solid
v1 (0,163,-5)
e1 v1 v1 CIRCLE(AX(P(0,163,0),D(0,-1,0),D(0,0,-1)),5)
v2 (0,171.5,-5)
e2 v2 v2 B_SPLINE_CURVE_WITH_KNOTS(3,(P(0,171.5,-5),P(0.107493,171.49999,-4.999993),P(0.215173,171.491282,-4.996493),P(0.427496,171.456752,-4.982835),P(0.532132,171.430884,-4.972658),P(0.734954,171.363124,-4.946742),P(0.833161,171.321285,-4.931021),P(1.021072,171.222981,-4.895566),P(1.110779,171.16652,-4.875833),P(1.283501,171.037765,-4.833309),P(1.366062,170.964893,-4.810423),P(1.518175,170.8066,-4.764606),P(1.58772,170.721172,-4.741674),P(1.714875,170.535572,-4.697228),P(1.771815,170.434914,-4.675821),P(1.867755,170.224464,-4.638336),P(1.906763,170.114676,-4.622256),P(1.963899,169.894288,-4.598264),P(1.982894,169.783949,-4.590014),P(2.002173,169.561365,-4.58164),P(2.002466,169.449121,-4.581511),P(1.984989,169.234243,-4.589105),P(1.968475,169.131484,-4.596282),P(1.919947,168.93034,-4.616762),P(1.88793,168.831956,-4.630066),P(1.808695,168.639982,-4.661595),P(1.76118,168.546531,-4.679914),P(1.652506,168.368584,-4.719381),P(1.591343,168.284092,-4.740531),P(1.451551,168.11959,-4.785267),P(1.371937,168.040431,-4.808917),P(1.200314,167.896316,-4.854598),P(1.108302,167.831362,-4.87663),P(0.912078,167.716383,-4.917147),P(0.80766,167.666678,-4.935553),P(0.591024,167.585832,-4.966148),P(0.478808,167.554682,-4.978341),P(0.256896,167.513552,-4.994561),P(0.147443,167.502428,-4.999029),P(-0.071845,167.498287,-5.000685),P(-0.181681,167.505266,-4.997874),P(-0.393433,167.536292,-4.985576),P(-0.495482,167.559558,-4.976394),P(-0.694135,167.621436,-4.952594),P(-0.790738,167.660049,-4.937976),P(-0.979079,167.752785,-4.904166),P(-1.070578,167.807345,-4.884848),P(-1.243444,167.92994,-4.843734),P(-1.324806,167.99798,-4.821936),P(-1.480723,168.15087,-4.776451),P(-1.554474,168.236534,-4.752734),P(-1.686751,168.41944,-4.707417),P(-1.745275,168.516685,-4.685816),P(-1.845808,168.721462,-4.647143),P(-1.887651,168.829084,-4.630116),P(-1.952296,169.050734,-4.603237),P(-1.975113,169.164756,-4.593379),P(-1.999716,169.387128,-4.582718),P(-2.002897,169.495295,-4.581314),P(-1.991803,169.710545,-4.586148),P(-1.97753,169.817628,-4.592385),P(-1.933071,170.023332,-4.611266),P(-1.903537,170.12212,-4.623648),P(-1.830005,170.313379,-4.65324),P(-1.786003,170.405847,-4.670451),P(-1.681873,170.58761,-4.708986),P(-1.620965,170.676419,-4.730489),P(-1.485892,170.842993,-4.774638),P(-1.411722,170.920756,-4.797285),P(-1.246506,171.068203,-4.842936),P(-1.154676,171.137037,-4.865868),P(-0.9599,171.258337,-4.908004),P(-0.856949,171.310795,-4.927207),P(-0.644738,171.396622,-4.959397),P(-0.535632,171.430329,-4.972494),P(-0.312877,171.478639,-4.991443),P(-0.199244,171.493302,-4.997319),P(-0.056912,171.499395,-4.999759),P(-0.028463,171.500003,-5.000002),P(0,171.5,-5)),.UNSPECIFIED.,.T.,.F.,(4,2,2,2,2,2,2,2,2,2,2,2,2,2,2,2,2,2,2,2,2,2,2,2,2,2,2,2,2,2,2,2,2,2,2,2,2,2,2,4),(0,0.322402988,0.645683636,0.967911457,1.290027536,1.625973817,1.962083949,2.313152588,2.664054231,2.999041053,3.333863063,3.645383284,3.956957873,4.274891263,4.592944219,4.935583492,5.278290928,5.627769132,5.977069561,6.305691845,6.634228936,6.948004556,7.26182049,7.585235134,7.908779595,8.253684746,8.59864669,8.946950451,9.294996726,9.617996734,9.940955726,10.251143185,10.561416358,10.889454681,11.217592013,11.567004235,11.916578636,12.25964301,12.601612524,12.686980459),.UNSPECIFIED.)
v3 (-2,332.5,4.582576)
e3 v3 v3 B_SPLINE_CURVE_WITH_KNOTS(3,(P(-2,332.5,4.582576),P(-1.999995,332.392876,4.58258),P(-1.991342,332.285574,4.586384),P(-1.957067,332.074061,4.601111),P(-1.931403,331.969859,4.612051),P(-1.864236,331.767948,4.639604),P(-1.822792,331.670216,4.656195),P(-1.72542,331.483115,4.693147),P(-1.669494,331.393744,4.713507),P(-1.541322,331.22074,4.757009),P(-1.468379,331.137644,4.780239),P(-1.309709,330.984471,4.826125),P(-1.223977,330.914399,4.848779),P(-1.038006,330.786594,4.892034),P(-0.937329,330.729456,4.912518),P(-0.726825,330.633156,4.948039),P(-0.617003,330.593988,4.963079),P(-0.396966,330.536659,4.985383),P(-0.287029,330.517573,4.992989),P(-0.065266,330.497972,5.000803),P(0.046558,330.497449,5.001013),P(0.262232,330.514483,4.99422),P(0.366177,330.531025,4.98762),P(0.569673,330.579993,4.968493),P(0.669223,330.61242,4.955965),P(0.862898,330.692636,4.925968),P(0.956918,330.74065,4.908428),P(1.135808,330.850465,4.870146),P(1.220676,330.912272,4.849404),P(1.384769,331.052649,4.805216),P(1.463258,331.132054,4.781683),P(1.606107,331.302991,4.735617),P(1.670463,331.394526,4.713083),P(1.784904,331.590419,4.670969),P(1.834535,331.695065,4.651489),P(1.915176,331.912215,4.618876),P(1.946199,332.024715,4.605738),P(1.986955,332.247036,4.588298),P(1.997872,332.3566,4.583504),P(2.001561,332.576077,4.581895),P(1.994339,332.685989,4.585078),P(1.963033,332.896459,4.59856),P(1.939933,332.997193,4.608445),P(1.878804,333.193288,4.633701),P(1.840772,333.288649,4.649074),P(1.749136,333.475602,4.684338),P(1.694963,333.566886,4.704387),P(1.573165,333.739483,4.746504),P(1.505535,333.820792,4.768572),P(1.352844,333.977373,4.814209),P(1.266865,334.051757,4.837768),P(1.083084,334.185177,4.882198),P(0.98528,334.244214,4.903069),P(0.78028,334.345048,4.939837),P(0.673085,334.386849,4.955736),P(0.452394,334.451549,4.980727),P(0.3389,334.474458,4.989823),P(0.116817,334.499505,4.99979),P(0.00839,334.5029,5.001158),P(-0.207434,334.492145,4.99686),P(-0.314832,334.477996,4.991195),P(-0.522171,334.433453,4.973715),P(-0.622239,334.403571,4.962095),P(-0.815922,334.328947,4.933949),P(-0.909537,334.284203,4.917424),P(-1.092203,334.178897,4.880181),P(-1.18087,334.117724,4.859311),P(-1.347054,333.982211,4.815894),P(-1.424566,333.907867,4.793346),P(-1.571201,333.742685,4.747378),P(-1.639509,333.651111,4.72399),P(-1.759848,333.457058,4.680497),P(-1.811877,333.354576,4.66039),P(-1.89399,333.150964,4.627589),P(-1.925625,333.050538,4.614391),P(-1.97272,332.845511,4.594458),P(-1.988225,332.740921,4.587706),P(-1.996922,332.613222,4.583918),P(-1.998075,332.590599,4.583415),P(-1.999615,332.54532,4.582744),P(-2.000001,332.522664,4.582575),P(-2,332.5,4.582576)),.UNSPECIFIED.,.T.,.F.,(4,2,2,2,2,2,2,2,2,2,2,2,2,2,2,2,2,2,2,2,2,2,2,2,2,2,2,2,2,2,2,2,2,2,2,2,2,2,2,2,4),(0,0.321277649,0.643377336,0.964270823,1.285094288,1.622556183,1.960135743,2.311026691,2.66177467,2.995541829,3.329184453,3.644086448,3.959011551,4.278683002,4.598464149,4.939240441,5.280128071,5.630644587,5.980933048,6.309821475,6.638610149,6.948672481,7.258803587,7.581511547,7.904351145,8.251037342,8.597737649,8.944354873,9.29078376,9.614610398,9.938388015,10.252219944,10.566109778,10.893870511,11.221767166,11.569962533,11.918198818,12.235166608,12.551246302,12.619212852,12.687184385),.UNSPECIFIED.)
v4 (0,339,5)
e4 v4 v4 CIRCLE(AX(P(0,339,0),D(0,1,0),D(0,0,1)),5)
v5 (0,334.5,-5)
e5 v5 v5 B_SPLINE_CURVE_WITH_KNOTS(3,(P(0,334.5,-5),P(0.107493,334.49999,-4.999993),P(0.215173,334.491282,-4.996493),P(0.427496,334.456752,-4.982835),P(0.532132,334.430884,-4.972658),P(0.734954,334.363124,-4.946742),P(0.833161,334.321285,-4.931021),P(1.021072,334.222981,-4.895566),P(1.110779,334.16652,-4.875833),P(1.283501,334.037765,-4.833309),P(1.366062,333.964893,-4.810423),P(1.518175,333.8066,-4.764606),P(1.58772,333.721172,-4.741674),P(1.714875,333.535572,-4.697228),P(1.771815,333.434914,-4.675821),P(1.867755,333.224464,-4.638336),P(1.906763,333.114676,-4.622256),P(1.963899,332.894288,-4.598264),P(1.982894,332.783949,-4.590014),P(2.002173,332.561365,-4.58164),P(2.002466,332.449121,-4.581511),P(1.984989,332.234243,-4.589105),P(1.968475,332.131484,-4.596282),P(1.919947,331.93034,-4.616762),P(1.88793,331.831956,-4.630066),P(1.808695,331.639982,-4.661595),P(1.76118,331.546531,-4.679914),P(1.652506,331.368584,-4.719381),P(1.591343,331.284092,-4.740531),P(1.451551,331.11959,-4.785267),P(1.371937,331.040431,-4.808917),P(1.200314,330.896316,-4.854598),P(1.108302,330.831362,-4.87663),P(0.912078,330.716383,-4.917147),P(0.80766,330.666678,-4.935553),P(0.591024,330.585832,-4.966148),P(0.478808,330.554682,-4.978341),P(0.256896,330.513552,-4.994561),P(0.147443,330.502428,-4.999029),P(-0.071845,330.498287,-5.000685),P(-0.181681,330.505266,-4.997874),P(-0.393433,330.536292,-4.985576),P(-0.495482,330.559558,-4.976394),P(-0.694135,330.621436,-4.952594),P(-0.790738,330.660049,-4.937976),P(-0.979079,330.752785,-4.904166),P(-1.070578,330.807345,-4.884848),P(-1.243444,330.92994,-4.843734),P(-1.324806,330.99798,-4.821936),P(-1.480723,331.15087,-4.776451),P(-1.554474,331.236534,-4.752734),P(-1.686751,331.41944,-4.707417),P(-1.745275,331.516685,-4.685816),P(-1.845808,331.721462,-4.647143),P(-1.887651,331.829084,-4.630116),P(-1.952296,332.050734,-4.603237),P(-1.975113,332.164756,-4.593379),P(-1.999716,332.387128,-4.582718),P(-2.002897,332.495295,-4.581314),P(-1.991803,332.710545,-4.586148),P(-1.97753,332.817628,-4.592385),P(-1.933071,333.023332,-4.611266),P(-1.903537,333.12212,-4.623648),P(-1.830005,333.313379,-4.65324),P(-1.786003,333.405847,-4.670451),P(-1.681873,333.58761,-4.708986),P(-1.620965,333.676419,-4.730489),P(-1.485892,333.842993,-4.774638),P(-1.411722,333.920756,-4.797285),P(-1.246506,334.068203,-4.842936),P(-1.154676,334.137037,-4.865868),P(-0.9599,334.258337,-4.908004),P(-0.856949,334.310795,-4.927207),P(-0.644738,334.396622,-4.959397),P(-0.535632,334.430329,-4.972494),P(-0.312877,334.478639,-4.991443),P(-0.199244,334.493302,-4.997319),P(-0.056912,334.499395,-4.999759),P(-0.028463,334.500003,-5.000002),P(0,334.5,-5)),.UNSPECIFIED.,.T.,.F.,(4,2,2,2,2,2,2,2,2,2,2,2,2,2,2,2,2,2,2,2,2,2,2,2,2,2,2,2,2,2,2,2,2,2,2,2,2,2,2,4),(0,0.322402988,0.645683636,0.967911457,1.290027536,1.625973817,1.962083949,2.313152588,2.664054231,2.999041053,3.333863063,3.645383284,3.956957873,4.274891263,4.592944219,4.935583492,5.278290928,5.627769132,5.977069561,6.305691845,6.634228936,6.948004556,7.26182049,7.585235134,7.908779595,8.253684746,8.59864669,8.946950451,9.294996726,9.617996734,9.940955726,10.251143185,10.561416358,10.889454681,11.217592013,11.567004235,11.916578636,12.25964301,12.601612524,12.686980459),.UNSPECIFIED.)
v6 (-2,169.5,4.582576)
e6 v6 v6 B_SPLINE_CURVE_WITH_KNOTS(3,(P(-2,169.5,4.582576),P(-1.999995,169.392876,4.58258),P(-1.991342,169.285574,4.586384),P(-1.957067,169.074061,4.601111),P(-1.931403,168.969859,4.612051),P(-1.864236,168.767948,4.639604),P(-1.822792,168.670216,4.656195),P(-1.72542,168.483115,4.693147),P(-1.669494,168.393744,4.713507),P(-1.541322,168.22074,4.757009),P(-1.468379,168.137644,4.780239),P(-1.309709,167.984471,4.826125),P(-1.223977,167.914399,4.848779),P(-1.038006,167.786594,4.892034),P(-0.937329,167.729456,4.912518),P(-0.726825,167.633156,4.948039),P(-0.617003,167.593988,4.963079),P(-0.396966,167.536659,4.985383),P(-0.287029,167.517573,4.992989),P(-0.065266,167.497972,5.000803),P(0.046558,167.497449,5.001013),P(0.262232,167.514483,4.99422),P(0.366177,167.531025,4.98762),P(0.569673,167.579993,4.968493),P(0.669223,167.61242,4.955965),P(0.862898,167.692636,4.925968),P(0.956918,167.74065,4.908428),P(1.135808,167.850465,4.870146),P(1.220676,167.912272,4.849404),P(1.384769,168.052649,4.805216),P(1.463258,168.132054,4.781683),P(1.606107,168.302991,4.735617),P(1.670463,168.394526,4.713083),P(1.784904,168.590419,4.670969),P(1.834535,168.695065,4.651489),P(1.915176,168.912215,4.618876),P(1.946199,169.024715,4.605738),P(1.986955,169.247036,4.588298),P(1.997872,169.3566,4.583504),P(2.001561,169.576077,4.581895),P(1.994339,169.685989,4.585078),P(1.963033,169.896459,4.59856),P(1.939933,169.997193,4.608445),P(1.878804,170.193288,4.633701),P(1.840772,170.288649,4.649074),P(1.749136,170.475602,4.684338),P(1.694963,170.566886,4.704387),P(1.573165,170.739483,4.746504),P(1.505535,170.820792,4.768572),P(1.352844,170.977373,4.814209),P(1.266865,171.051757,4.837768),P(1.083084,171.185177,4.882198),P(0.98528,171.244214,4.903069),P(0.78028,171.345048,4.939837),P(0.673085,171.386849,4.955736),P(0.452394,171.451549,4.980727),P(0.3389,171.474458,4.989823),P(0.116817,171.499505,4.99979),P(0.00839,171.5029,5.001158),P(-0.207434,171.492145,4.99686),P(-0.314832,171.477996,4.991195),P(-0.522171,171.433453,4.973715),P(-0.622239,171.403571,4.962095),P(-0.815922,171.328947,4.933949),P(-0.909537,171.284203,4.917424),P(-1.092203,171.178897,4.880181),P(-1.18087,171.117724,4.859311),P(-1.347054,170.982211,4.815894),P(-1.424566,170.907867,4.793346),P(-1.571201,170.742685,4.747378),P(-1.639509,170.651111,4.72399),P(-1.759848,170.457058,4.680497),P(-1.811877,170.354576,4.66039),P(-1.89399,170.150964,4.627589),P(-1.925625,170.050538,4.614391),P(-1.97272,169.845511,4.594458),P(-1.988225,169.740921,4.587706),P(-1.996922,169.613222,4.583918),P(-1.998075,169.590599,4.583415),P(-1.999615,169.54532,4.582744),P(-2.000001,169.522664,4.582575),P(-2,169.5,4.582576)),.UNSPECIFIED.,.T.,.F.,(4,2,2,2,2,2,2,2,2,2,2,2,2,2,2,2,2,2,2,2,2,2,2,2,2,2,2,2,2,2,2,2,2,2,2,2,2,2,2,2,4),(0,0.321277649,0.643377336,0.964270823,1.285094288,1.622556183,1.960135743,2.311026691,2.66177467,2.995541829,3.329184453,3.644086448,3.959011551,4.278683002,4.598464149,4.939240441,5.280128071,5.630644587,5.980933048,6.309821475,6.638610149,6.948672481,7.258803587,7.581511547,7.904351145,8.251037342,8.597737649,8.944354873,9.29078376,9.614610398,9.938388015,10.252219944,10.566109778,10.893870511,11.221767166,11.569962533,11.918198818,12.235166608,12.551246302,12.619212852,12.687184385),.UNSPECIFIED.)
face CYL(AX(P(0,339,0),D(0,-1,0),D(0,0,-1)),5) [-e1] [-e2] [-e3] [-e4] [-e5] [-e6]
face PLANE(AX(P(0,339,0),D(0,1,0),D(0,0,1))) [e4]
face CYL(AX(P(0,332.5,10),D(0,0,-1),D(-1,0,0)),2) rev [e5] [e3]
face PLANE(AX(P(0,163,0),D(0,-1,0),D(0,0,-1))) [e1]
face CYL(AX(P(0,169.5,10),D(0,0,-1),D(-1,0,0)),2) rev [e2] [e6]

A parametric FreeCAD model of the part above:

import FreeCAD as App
import Part
import Sketcher
from FreeCAD import Vector
Q = App.Units.Quantity

doc = App.newDocument("Part")
body = doc.addObject("PartDesign::Body", "Body")

# Sketch on XZ plane
sketch1 = doc.addObject("Sketcher::SketchObject", "Sketch")
body.addObject(sketch1)
sketch1.AttachmentSupport = (doc.XZ_Plane, [""])
sketch1.MapMode = "FlatFace"
sketch1.addGeometry(Part.Circle(Vector(0, 0, 0), Vector(0, 0, 1), 5), False)
sketch1.addConstraint(Sketcher.Constraint("Coincident", 0, 3, -1, 1))
sketch1.addConstraint(Sketcher.Constraint("Diameter", 0, Q("10 mm")))
pad1 = doc.addObject("PartDesign::Pad", "Pad")
body.addObject(pad1)
pad1.Profile = sketch1
pad1.Length = 339
pad1.Reversed = True

# Sketch on XZ plane
sketch2 = doc.addObject("Sketcher::SketchObject", "Sketch001")
body.addObject(sketch2)
sketch2.AttachmentSupport = (doc.XZ_Plane, [""])
sketch2.MapMode = "FlatFace"
sketch2.addGeometry(Part.Circle(Vector(0, 0, 0), Vector(0, 0, 1), 6), False)
sketch2.addConstraint(Sketcher.Constraint("Coincident", 0, 3, -1, 1))
sketch2.addConstraint(Sketcher.Constraint("Diameter", 0, Q("12.571625 mm")))
pocket1 = doc.addObject("PartDesign::Pocket", "Pocket")
body.addObject(pocket1)
pocket1.Profile = sketch2
pocket1.Length = 163

# Sketch on XY plane
sketch3 = doc.addObject("Sketcher::SketchObject", "Sketch002")
body.addObject(sketch3)
sketch3.AttachmentSupport = (doc.XY_Plane, [""])
sketch3.MapMode = "FlatFace"
sketch3.addGeometry(Part.Circle(Vector(0, 332.5, 0), Vector(0, 0, 1), 2), False)
sketch3.addConstraint(Sketcher.Constraint("PointOnObject", 0, 3, -2))
sketch3.addConstraint(Sketcher.Constraint("Diameter", 0, Q("4 mm")))
sketch3.addConstraint(Sketcher.Constraint("DistanceY", -1, 1, 0, 3, Q("332.5 mm")))
pocket2 = doc.addObject("PartDesign::Pocket", "Pocket001")
body.addObject(pocket2)
pocket2.Profile = sketch3
pocket2.Type = "ThroughAll"
pocket2.Midplane = True

# Sketch on XY plane
sketch4 = doc.addObject("Sketcher::SketchObject", "Sketch003")
body.addObject(sketch4)
sketch4.AttachmentSupport = (doc.XY_Plane, [""])
sketch4.MapMode = "FlatFace"
sketch4.addGeometry(Part.Circle(Vector(0, 169.5, 0), Vector(0, 0, 1), 2), False)
sketch4.addConstraint(Sketcher.Constraint("PointOnObject", 0, 3, -2))
sketch4.addConstraint(Sketcher.Constraint("Diameter", 0, Q("4 mm")))
sketch4.addConstraint(Sketcher.Constraint("DistanceY", -1, 1, 0, 3, Q("169.5 mm")))
pocket3 = doc.addObject("PartDesign::Pocket", "Pocket002")
body.addObject(pocket3)
pocket3.Profile = sketch4
pocket3.Type = "ThroughAll"
pocket3.Midplane = True

doc.recompute()
